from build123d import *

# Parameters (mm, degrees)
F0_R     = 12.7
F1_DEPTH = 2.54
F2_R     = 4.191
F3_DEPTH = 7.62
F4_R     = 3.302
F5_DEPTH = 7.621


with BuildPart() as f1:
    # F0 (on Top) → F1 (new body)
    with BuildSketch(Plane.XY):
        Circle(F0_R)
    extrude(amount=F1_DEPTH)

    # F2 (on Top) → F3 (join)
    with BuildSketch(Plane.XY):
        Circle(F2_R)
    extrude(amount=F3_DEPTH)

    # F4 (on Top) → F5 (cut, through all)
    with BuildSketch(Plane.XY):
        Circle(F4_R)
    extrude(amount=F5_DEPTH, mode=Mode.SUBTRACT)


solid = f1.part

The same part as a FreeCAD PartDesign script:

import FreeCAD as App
import Part
import Sketcher

V = App.Vector
Q = App.Units.Quantity

doc = App.newDocument("Part")
body = doc.addObject("PartDesign::Body", "Body")

# Sketch on XY plane
sketch1 = body.newObject("Sketcher::SketchObject", "Sketch")
sketch1.AttachmentSupport = (doc.getObject("XY_Plane"), [""])
sketch1.MapMode = "FlatFace"
sketch1.addGeometry(Part.Circle(V(0, 0, 0), V(0, 0, 1), 13), False)
sketch1.addConstraint(Sketcher.Constraint("Coincident", 0, 3, -1, 1))
sketch1.addConstraint(Sketcher.Constraint("Diameter", 0, Q("1 in")))
pad1 = body.newObject("PartDesign::Pad", "Pad")
pad1.Profile = sketch1
pad1.Length = Q("0.1 in")

# Sketch on XY plane
sketch2 = body.newObject("Sketcher::SketchObject", "Sketch001")
sketch2.AttachmentSupport = (doc.getObject("XY_Plane"), [""])
sketch2.MapMode = "FlatFace"
sketch2.addGeometry(Part.Circle(V(0, 0, 0), V(0, 0, 1), 4.2), False)
sketch2.addConstraint(Sketcher.Constraint("Coincident", 0, 3, -1, 1))
sketch2.addConstraint(Sketcher.Constraint("Diameter", 0, Q("0.33 in")))
pad2 = body.newObject("PartDesign::Pad", "Pad001")
pad2.Profile = sketch2
pad2.Length = Q("0.3 in")

# Sketch on XY plane
sketch3 = body.newObject("Sketcher::SketchObject", "Sketch002")
sketch3.AttachmentSupport = (doc.getObject("XY_Plane"), [""])
sketch3.MapMode = "FlatFace"
sketch3.addGeometry(Part.Circle(V(0, 0, 0), V(0, 0, 1), 3.3), False)
sketch3.addConstraint(Sketcher.Constraint("Coincident", 0, 3, -1, 1))
sketch3.addConstraint(Sketcher.Constraint("Diameter", 0, Q("0.26 in")))
pocket1 = body.newObject("PartDesign::Pocket", "Pocket")
pocket1.Profile = sketch3
pocket1.Type = "ThroughAll"
pocket1.Reversed = True

doc.recompute()
